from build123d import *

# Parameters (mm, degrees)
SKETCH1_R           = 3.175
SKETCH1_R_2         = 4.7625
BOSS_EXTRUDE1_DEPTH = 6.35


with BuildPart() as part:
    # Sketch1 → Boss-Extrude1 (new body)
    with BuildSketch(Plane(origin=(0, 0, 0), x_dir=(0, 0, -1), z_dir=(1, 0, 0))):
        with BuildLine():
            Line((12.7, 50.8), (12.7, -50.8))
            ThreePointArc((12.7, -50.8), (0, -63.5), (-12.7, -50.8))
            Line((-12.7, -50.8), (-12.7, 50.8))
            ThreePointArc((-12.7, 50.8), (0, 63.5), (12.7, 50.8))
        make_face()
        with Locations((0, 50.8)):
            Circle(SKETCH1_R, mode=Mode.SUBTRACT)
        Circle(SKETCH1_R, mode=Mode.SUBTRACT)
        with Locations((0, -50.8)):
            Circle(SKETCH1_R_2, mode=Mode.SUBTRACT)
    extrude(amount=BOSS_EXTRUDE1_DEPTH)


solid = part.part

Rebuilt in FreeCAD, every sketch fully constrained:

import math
import FreeCAD as App
import Part
import Sketcher
Q = App.Units.Quantity

doc = App.newDocument("Part")
body = doc.addObject("PartDesign::Body", "Body")

sketch1 = doc.addObject("Sketcher::SketchObject", "Sketch")
body.addObject(sketch1)
sketch1.AttachmentSupport = (doc.YZ_Plane, [""])
sketch1.MapMode = "FlatFace"
sketch1.addGeometry([
    Part.LineSegment(App.Vector(-50.8, -12.7, 0), App.Vector(50.8, -12.7, 0)),
    Part.ArcOfCircle(Part.Circle(App.Vector(50.8, 0, 0), App.Vector(0, 0, 1), 12.7), math.radians(-90), math.radians(90)),
    Part.LineSegment(App.Vector(50.8, 12.7, 0), App.Vector(-50.8, 12.7, 0)),
    Part.ArcOfCircle(Part.Circle(App.Vector(-50.8, 0, 0), App.Vector(0, 0, 1), 12.7), math.radians(90), math.radians(270)),
    Part.Circle(App.Vector(-50.8, 0, 0), App.Vector(0, 0, 1), 4.8),
    Part.Circle(App.Vector(0, 0, 0), App.Vector(0, 0, 1), 3.2),
    Part.Circle(App.Vector(50.8, 0, 0), App.Vector(0, 0, 1), 3.2),
], False)
sketch1.addConstraint([
    Sketcher.Constraint("Tangent", 0, 2, 1, 1),
    Sketcher.Constraint("Tangent", 1, 2, 2, 1),
    Sketcher.Constraint("Tangent", 2, 2, 3, 1),
    Sketcher.Constraint("Tangent", 3, 2, 0, 1),
    Sketcher.Constraint("Horizontal", 0),
    Sketcher.Constraint("Horizontal", 2),
    Sketcher.Constraint("Coincident", 5, 3, -1, 1),
    Sketcher.Constraint("Coincident", 4, 3, 3, 3),
    Sketcher.Constraint("Coincident", 6, 3, 1, 3),
    Sketcher.Constraint("Equal", 5, 6),
    Sketcher.Constraint("Symmetric", 1, 3, 3, 3, -1, 1),
    Sketcher.Constraint("Radius", 1, Q("0.5 in")),
    Sketcher.Constraint("Diameter", 5, Q("0.25 in")),
    Sketcher.Constraint("DistanceX", 0, 1, 0, 2, Q("4 in")),
    Sketcher.Constraint("Diameter", 4, Q("0.375 in")),
])
pad1 = doc.addObject("PartDesign::Pad", "Pad")
body.addObject(pad1)
pad1.Profile = sketch1
pad1.Length = Q("0.25 in")

doc.recompute()
